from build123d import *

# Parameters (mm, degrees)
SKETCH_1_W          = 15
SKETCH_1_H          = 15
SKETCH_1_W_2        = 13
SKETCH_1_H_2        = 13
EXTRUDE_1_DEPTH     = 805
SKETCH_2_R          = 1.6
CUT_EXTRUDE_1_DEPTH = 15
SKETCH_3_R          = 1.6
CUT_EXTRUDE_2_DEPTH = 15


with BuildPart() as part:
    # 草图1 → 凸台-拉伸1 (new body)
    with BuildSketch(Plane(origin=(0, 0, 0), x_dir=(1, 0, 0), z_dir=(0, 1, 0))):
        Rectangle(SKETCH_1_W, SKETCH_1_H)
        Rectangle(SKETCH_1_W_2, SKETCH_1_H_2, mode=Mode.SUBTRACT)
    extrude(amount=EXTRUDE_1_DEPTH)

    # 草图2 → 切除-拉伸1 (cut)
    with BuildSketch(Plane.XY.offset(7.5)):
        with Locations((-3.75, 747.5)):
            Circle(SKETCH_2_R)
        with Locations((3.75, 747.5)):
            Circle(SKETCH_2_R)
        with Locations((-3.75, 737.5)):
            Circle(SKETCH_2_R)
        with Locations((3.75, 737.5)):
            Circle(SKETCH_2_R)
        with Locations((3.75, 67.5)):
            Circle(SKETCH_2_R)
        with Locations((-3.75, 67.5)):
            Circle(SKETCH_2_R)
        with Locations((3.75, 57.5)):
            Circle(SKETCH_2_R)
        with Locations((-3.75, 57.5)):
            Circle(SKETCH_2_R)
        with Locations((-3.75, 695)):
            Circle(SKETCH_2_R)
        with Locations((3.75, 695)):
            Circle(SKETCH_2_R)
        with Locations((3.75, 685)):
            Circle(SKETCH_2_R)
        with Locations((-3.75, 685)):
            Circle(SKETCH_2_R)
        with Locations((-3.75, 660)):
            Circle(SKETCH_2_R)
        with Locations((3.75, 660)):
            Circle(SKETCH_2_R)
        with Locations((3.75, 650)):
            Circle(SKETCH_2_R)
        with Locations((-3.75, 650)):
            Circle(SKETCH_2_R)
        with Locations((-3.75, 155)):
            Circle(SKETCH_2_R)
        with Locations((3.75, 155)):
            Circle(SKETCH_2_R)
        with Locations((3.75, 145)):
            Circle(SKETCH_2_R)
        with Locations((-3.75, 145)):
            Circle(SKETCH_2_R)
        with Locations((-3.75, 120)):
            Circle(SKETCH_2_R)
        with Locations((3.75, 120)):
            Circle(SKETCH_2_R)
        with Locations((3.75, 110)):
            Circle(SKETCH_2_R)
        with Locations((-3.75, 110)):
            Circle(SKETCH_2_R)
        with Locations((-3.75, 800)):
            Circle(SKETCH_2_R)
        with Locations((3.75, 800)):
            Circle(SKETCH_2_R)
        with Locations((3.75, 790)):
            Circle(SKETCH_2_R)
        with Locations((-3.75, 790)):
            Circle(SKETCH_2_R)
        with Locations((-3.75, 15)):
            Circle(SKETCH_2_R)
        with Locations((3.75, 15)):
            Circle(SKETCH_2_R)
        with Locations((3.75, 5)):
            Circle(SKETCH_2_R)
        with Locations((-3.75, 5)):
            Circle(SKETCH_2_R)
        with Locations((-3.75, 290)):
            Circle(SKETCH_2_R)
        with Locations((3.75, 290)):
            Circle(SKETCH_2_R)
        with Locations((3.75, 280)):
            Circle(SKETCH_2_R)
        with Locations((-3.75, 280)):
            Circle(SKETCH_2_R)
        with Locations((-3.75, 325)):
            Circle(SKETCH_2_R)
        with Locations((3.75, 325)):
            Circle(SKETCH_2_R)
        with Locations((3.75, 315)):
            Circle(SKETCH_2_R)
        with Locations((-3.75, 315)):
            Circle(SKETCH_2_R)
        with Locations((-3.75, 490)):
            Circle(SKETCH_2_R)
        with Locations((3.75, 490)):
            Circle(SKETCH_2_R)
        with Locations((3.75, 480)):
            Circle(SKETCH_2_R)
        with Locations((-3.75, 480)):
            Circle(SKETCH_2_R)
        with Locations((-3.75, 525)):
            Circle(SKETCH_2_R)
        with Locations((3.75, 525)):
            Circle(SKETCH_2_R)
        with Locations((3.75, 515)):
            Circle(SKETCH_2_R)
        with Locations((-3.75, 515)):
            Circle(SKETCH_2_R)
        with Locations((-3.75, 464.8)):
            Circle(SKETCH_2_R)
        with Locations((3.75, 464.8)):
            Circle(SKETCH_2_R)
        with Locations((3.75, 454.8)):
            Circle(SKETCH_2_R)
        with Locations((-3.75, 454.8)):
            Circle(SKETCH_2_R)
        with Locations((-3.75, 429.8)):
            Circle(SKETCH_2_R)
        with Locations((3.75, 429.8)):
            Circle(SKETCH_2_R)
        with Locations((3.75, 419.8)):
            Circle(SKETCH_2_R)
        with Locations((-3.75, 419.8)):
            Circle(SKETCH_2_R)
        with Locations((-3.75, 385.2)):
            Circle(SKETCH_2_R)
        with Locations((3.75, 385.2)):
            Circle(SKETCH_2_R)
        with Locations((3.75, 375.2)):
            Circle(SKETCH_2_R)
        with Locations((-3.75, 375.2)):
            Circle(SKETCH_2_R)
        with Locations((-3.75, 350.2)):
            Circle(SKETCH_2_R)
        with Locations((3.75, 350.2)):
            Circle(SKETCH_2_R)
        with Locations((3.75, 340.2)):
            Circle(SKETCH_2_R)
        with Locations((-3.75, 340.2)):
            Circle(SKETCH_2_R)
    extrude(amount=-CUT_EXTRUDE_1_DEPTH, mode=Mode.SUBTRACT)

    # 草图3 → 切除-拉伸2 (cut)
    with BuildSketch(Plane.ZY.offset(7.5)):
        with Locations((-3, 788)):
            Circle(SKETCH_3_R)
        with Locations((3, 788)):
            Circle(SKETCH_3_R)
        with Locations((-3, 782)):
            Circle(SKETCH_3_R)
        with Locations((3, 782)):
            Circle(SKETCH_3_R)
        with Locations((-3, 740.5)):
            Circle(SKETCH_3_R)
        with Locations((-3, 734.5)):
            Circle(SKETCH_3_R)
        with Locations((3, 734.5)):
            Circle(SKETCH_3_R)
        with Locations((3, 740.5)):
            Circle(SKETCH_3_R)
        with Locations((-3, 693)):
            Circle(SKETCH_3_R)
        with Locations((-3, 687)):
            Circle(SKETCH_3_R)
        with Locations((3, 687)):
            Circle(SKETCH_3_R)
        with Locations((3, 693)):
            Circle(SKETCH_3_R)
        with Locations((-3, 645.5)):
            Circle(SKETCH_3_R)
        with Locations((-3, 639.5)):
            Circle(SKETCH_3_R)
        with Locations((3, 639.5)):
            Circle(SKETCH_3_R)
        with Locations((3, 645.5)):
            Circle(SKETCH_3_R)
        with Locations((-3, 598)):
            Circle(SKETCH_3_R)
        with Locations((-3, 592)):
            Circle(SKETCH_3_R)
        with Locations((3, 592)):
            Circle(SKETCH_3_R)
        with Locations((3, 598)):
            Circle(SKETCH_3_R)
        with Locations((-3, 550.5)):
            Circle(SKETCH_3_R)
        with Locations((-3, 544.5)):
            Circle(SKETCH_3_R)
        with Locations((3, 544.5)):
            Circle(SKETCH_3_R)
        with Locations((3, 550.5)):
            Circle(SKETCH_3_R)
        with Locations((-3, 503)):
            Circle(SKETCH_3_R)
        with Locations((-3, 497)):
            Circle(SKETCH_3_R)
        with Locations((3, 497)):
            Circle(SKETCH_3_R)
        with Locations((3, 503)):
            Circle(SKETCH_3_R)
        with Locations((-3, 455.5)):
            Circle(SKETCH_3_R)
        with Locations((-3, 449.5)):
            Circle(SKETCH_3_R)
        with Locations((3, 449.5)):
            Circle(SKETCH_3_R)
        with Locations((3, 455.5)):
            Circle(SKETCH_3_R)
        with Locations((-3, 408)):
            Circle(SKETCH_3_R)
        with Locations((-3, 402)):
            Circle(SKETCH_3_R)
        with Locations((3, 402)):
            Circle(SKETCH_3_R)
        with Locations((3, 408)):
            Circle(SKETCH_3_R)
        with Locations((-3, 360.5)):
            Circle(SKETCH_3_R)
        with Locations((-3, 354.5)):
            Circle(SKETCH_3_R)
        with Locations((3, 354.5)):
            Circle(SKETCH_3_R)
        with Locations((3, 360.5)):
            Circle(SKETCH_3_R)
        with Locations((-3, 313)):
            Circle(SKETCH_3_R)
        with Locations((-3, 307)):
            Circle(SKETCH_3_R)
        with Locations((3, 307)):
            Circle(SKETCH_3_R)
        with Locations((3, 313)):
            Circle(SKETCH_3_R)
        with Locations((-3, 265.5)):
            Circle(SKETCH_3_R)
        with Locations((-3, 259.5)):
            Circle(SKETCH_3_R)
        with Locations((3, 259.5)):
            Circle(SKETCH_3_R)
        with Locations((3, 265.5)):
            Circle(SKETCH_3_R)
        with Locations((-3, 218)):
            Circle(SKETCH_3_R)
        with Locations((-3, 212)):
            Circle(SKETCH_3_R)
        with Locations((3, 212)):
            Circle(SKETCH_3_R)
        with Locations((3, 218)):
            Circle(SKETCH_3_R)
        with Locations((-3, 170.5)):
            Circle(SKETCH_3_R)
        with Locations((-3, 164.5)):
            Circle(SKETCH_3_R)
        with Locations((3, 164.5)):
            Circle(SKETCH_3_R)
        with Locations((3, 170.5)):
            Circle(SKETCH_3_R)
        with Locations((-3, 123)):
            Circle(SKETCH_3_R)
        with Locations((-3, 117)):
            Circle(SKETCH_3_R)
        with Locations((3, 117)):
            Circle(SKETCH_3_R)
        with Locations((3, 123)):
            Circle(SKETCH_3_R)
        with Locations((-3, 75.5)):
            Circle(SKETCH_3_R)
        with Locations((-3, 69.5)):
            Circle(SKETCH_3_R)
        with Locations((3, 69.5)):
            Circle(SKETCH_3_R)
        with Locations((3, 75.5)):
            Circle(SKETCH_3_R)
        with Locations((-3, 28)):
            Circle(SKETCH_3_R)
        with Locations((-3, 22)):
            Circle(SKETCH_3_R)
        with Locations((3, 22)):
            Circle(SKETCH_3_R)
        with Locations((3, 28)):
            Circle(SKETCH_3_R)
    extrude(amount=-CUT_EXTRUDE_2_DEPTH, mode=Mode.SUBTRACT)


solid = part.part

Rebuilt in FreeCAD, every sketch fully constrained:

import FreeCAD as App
import Part
import Sketcher
from FreeCAD import Vector
Q = App.Units.Quantity


def add_polygon(sketch, points):
    """Adds a closed chain of lines whose ends are joined by coincident constraints."""
    first, n = sketch.GeometryCount, len(points)
    for a, b in zip(points, points[1:] + points[:1]):
        sketch.addGeometry(Part.LineSegment(App.Vector(*a, 0), App.Vector(*b, 0)), False)
    for i in range(n):
        sketch.addConstraint(Sketcher.Constraint("Coincident", first + i, 2, first + (i + 1) % n, 1))

doc = App.newDocument("Part")
body = doc.addObject("PartDesign::Body", "Body")

sketch1 = body.newObject("Sketcher::SketchObject", "Sketch")
sketch1.AttachmentSupport = (doc.getObject("XZ_Plane"), [""])
sketch1.MapMode = "FlatFace"
add_polygon(sketch1, [(-8, -8), (-8, 8), (8, 8), (8, -8)])
add_polygon(sketch1, [(6, 6), (-6, 6), (-6, -6), (6, -6)])
sketch1.addConstraint(Sketcher.Constraint("Vertical", 0))
sketch1.addConstraint(Sketcher.Constraint("Horizontal", 1))
sketch1.addConstraint(Sketcher.Constraint("Vertical", 2))
sketch1.addConstraint(Sketcher.Constraint("Horizontal", 3))
sketch1.addConstraint(Sketcher.Constraint("Horizontal", 4))
sketch1.addConstraint(Sketcher.Constraint("Vertical", 5))
sketch1.addConstraint(Sketcher.Constraint("Horizontal", 6))
sketch1.addConstraint(Sketcher.Constraint("Vertical", 7))
sketch1.addConstraint(Sketcher.Constraint("Symmetric", 0, 2, 2, 2, -1, 1))
sketch1.addConstraint(Sketcher.Constraint("Symmetric", 4, 2, 6, 2, -1, 1))
sketch1.addConstraint(Sketcher.Constraint("Equal", 3, 0))
sketch1.addConstraint(Sketcher.Constraint("Equal", 6, 5))
sketch1.addConstraint(Sketcher.Constraint("DistanceX", 1, 1, 1, 2, Q("15 mm")))
sketch1.addConstraint(Sketcher.Constraint("DistanceX", 4, 2, 4, 1, Q("13 mm")))
pad1 = body.newObject("PartDesign::Pad", "Pad")
pad1.Profile = sketch1
pad1.Length = 805
pad1.Reversed = True

sketch2 = body.newObject("Sketcher::SketchObject", "Sketch001")
sketch2.AttachmentSupport = (doc.getObject("XY_Plane"), [""])
sketch2.MapMode = "FlatFace"
sketch2.AttachmentOffset = App.Placement(Vector(0, 0, 7.5), App.Rotation())
sketch2.addGeometry(Part.Circle(Vector(-3.8, 747.5, 0), Vector(0, 0, 1), 1.6), False)
sketch2.addGeometry(Part.Circle(Vector(3.8, 747.5, 0), Vector(0, 0, 1), 1.6), False)
sketch2.addGeometry(Part.Circle(Vector(-3.8, 737.5, 0), Vector(0, 0, 1), 1.6), False)
sketch2.addGeometry(Part.Circle(Vector(3.8, 737.5, 0), Vector(0, 0, 1), 1.6), False)
sketch2.addGeometry(Part.Circle(Vector(3.8, 67.5, 0), Vector(0, 0, 1), 1.6), False)
sketch2.addGeometry(Part.Circle(Vector(-3.8, 67.5, 0), Vector(0, 0, 1), 1.6), False)
sketch2.addGeometry(Part.Circle(Vector(3.8, 57.5, 0), Vector(0, 0, 1), 1.6), False)
sketch2.addGeometry(Part.Circle(Vector(-3.8, 57.5, 0), Vector(0, 0, 1), 1.6), False)
sketch2.addGeometry(Part.Circle(Vector(-3.8, 695, 0), Vector(0, 0, 1), 1.6), False)
sketch2.addGeometry(Part.Circle(Vector(3.8, 695, 0), Vector(0, 0, 1), 1.6), False)
sketch2.addGeometry(Part.Circle(Vector(3.8, 685, 0), Vector(0, 0, 1), 1.6), False)
sketch2.addGeometry(Part.Circle(Vector(-3.8, 685, 0), Vector(0, 0, 1), 1.6), False)
sketch2.addGeometry(Part.Circle(Vector(-3.8, 660, 0), Vector(0, 0, 1), 1.6), False)
sketch2.addGeometry(Part.Circle(Vector(3.8, 660, 0), Vector(0, 0, 1), 1.6), False)
sketch2.addGeometry(Part.Circle(Vector(3.8, 650, 0), Vector(0, 0, 1), 1.6), False)
sketch2.addGeometry(Part.Circle(Vector(-3.8, 650, 0), Vector(0, 0, 1), 1.6), False)
sketch2.addGeometry(Part.Circle(Vector(-3.8, 155, 0), Vector(0, 0, 1), 1.6), False)
sketch2.addGeometry(Part.Circle(Vector(3.8, 155, 0), Vector(0, 0, 1), 1.6), False)
sketch2.addGeometry(Part.Circle(Vector(3.8, 145, 0), Vector(0, 0, 1), 1.6), False)
sketch2.addGeometry(Part.Circle(Vector(-3.8, 145, 0), Vector(0, 0, 1), 1.6), False)
sketch2.addGeometry(Part.Circle(Vector(-3.8, 120, 0), Vector(0, 0, 1), 1.6), False)
sketch2.addGeometry(Part.Circle(Vector(3.8, 120, 0), Vector(0, 0, 1), 1.6), False)
sketch2.addGeometry(Part.Circle(Vector(3.8, 110, 0), Vector(0, 0, 1), 1.6), False)
sketch2.addGeometry(Part.Circle(Vector(-3.8, 110, 0), Vector(0, 0, 1), 1.6), False)
sketch2.addGeometry(Part.Circle(Vector(-3.8, 800, 0), Vector(0, 0, 1), 1.6), False)
sketch2.addGeometry(Part.Circle(Vector(3.8, 800, 0), Vector(0, 0, 1), 1.6), False)
sketch2.addGeometry(Part.Circle(Vector(3.8, 790, 0), Vector(0, 0, 1), 1.6), False)
sketch2.addGeometry(Part.Circle(Vector(-3.8, 790, 0), Vector(0, 0, 1), 1.6), False)
sketch2.addGeometry(Part.Circle(Vector(-3.8, 15, 0), Vector(0, 0, 1), 1.6), False)
sketch2.addGeometry(Part.Circle(Vector(3.8, 15, 0), Vector(0, 0, 1), 1.6), False)
sketch2.addGeometry(Part.Circle(Vector(3.8, 5, 0), Vector(0, 0, 1), 1.6), False)
sketch2.addGeometry(Part.Circle(Vector(-3.8, 5, 0), Vector(0, 0, 1), 1.6), False)
sketch2.addGeometry(Part.Circle(Vector(-3.8, 290, 0), Vector(0, 0, 1), 1.6), False)
sketch2.addGeometry(Part.Circle(Vector(3.8, 290, 0), Vector(0, 0, 1), 1.6), False)
sketch2.addGeometry(Part.Circle(Vector(3.8, 280, 0), Vector(0, 0, 1), 1.6), False)
sketch2.addGeometry(Part.Circle(Vector(-3.8, 280, 0), Vector(0, 0, 1), 1.6), False)
sketch2.addGeometry(Part.Circle(Vector(-3.8, 325, 0), Vector(0, 0, 1), 1.6), False)
sketch2.addGeometry(Part.Circle(Vector(3.8, 325, 0), Vector(0, 0, 1), 1.6), False)
sketch2.addGeometry(Part.Circle(Vector(3.8, 315, 0), Vector(0, 0, 1), 1.6), False)
sketch2.addGeometry(Part.Circle(Vector(-3.8, 315, 0), Vector(0, 0, 1), 1.6), False)
sketch2.addGeometry(Part.Circle(Vector(-3.8, 490, 0), Vector(0, 0, 1), 1.6), False)
sketch2.addGeometry(Part.Circle(Vector(3.8, 490, 0), Vector(0, 0, 1), 1.6), False)
sketch2.addGeometry(Part.Circle(Vector(3.8, 480, 0), Vector(0, 0, 1), 1.6), False)
sketch2.addGeometry(Part.Circle(Vector(-3.8, 480, 0), Vector(0, 0, 1), 1.6), False)
sketch2.addGeometry(Part.Circle(Vector(-3.8, 525, 0), Vector(0, 0, 1), 1.6), False)
sketch2.addGeometry(Part.Circle(Vector(3.8, 525, 0), Vector(0, 0, 1), 1.6), False)
sketch2.addGeometry(Part.Circle(Vector(3.8, 515, 0), Vector(0, 0, 1), 1.6), False)
sketch2.addGeometry(Part.Circle(Vector(-3.8, 515, 0), Vector(0, 0, 1), 1.6), False)
sketch2.addGeometry(Part.Circle(Vector(-3.8, 464.8, 0), Vector(0, 0, 1), 1.6), False)
sketch2.addGeometry(Part.Circle(Vector(3.8, 464.8, 0), Vector(0, 0, 1), 1.6), False)
sketch2.addGeometry(Part.Circle(Vector(3.8, 454.8, 0), Vector(0, 0, 1), 1.6), False)
sketch2.addGeometry(Part.Circle(Vector(-3.8, 454.8, 0), Vector(0, 0, 1), 1.6), False)
sketch2.addGeometry(Part.Circle(Vector(-3.8, 429.8, 0), Vector(0, 0, 1), 1.6), False)
sketch2.addGeometry(Part.Circle(Vector(3.8, 429.8, 0), Vector(0, 0, 1), 1.6), False)
sketch2.addGeometry(Part.Circle(Vector(3.8, 419.8, 0), Vector(0, 0, 1), 1.6), False)
sketch2.addGeometry(Part.Circle(Vector(-3.8, 419.8, 0), Vector(0, 0, 1), 1.6), False)
sketch2.addGeometry(Part.Circle(Vector(-3.8, 385.2, 0), Vector(0, 0, 1), 1.6), False)
sketch2.addGeometry(Part.Circle(Vector(3.8, 385.2, 0), Vector(0, 0, 1), 1.6), False)
sketch2.addGeometry(Part.Circle(Vector(3.8, 375.2, 0), Vector(0, 0, 1), 1.6), False)
sketch2.addGeometry(Part.Circle(Vector(-3.8, 375.2, 0), Vector(0, 0, 1), 1.6), False)
sketch2.addGeometry(Part.Circle(Vector(-3.8, 350.2, 0), Vector(0, 0, 1), 1.6), False)
sketch2.addGeometry(Part.Circle(Vector(3.8, 350.2, 0), Vector(0, 0, 1), 1.6), False)
sketch2.addGeometry(Part.Circle(Vector(3.8, 340.2, 0), Vector(0, 0, 1), 1.6), False)
sketch2.addGeometry(Part.Circle(Vector(-3.8, 340.2, 0), Vector(0, 0, 1), 1.6), False)
sketch2.addConstraint(Sketcher.Constraint("Equal", 0, 1))
sketch2.addConstraint(Sketcher.Constraint("Equal", 1, 2))
sketch2.addConstraint(Sketcher.Constraint("Equal", 2, 3))
sketch2.addConstraint(Sketcher.Constraint("Equal", 3, 4))
sketch2.addConstraint(Sketcher.Constraint("Equal", 4, 5))
sketch2.addConstraint(Sketcher.Constraint("Equal", 5, 6))
sketch2.addConstraint(Sketcher.Constraint("Equal", 6, 7))
sketch2.addConstraint(Sketcher.Constraint("Equal", 7, 8))
sketch2.addConstraint(Sketcher.Constraint("Equal", 8, 9))
sketch2.addConstraint(Sketcher.Constraint("Equal", 9, 10))
sketch2.addConstraint(Sketcher.Constraint("Equal", 10, 11))
sketch2.addConstraint(Sketcher.Constraint("Equal", 11, 12))
sketch2.addConstraint(Sketcher.Constraint("Equal", 12, 13))
sketch2.addConstraint(Sketcher.Constraint("Equal", 13, 14))
sketch2.addConstraint(Sketcher.Constraint("Equal", 14, 15))
sketch2.addConstraint(Sketcher.Constraint("Equal", 15, 16))
sketch2.addConstraint(Sketcher.Constraint("Equal", 16, 17))
sketch2.addConstraint(Sketcher.Constraint("Equal", 17, 18))
sketch2.addConstraint(Sketcher.Constraint("Equal", 18, 19))
sketch2.addConstraint(Sketcher.Constraint("Equal", 19, 20))
sketch2.addConstraint(Sketcher.Constraint("Equal", 20, 21))
sketch2.addConstraint(Sketcher.Constraint("Equal", 21, 22))
sketch2.addConstraint(Sketcher.Constraint("Equal", 22, 23))
sketch2.addConstraint(Sketcher.Constraint("Equal", 23, 24))
sketch2.addConstraint(Sketcher.Constraint("Equal", 24, 25))
sketch2.addConstraint(Sketcher.Constraint("Equal", 25, 26))
sketch2.addConstraint(Sketcher.Constraint("Equal", 26, 27))
sketch2.addConstraint(Sketcher.Constraint("Equal", 27, 28))
sketch2.addConstraint(Sketcher.Constraint("Equal", 28, 29))
sketch2.addConstraint(Sketcher.Constraint("Equal", 29, 30))
sketch2.addConstraint(Sketcher.Constraint("Equal", 30, 31))
sketch2.addConstraint(Sketcher.Constraint("Equal", 31, 32))
sketch2.addConstraint(Sketcher.Constraint("Equal", 32, 33))
sketch2.addConstraint(Sketcher.Constraint("Equal", 33, 34))
sketch2.addConstraint(Sketcher.Constraint("Equal", 34, 35))
sketch2.addConstraint(Sketcher.Constraint("Equal", 35, 36))
sketch2.addConstraint(Sketcher.Constraint("Equal", 36, 37))
sketch2.addConstraint(Sketcher.Constraint("Equal", 37, 38))
sketch2.addConstraint(Sketcher.Constraint("Equal", 38, 39))
sketch2.addConstraint(Sketcher.Constraint("Equal", 39, 40))
sketch2.addConstraint(Sketcher.Constraint("Equal", 40, 41))
sketch2.addConstraint(Sketcher.Constraint("Equal", 41, 42))
sketch2.addConstraint(Sketcher.Constraint("Equal", 42, 43))
sketch2.addConstraint(Sketcher.Constraint("Equal", 43, 44))
sketch2.addConstraint(Sketcher.Constraint("Equal", 44, 45))
sketch2.addConstraint(Sketcher.Constraint("Equal", 45, 46))
sketch2.addConstraint(Sketcher.Constraint("Equal", 46, 47))
sketch2.addConstraint(Sketcher.Constraint("Equal", 47, 48))
sketch2.addConstraint(Sketcher.Constraint("Equal", 48, 49))
sketch2.addConstraint(Sketcher.Constraint("Equal", 49, 50))
sketch2.addConstraint(Sketcher.Constraint("Equal", 50, 51))
sketch2.addConstraint(Sketcher.Constraint("Equal", 51, 52))
sketch2.addConstraint(Sketcher.Constraint("Equal", 52, 53))
sketch2.addConstraint(Sketcher.Constraint("Equal", 53, 54))
sketch2.addConstraint(Sketcher.Constraint("Equal", 54, 55))
sketch2.addConstraint(Sketcher.Constraint("Equal", 55, 56))
sketch2.addConstraint(Sketcher.Constraint("Equal", 56, 57))
sketch2.addConstraint(Sketcher.Constraint("Equal", 57, 58))
sketch2.addConstraint(Sketcher.Constraint("Equal", 58, 59))
sketch2.addConstraint(Sketcher.Constraint("Equal", 59, 60))
sketch2.addConstraint(Sketcher.Constraint("Equal", 60, 61))
sketch2.addConstraint(Sketcher.Constraint("Equal", 61, 62))
sketch2.addConstraint(Sketcher.Constraint("Equal", 62, 63))
sketch2.addConstraint(Sketcher.Constraint("Symmetric", 0, 3, 1, 3, -2))
sketch2.addConstraint(Sketcher.Constraint("Symmetric", 2, 3, 3, 3, -2))
sketch2.addConstraint(Sketcher.Constraint("Symmetric", 4, 3, 5, 3, -2))
sketch2.addConstraint(Sketcher.Constraint("Symmetric", 6, 3, 7, 3, -2))
sketch2.addConstraint(Sketcher.Constraint("Symmetric", 8, 3, 9, 3, -2))
sketch2.addConstraint(Sketcher.Constraint("Symmetric", 10, 3, 11, 3, -2))
sketch2.addConstraint(Sketcher.Constraint("Symmetric", 12, 3, 13, 3, -2))
sketch2.addConstraint(Sketcher.Constraint("Symmetric", 14, 3, 15, 3, -2))
sketch2.addConstraint(Sketcher.Constraint("Symmetric", 16, 3, 17, 3, -2))
sketch2.addConstraint(Sketcher.Constraint("Symmetric", 18, 3, 19, 3, -2))
sketch2.addConstraint(Sketcher.Constraint("Symmetric", 20, 3, 21, 3, -2))
sketch2.addConstraint(Sketcher.Constraint("Symmetric", 22, 3, 23, 3, -2))
sketch2.addConstraint(Sketcher.Constraint("Symmetric", 24, 3, 25, 3, -2))
sketch2.addConstraint(Sketcher.Constraint("Symmetric", 26, 3, 27, 3, -2))
sketch2.addConstraint(Sketcher.Constraint("Symmetric", 28, 3, 29, 3, -2))
sketch2.addConstraint(Sketcher.Constraint("Symmetric", 30, 3, 31, 3, -2))
sketch2.addConstraint(Sketcher.Constraint("Symmetric", 32, 3, 33, 3, -2))
sketch2.addConstraint(Sketcher.Constraint("Symmetric", 34, 3, 35, 3, -2))
sketch2.addConstraint(Sketcher.Constraint("Symmetric", 36, 3, 37, 3, -2))
sketch2.addConstraint(Sketcher.Constraint("Symmetric", 38, 3, 39, 3, -2))
sketch2.addConstraint(Sketcher.Constraint("Symmetric", 40, 3, 41, 3, -2))
sketch2.addConstraint(Sketcher.Constraint("Symmetric", 42, 3, 43, 3, -2))
sketch2.addConstraint(Sketcher.Constraint("Symmetric", 44, 3, 45, 3, -2))
sketch2.addConstraint(Sketcher.Constraint("Symmetric", 46, 3, 47, 3, -2))
sketch2.addConstraint(Sketcher.Constraint("Symmetric", 48, 3, 49, 3, -2))
sketch2.addConstraint(Sketcher.Constraint("Symmetric", 50, 3, 51, 3, -2))
sketch2.addConstraint(Sketcher.Constraint("Symmetric", 52, 3, 53, 3, -2))
sketch2.addConstraint(Sketcher.Constraint("Symmetric", 54, 3, 55, 3, -2))
sketch2.addConstraint(Sketcher.Constraint("Symmetric", 56, 3, 57, 3, -2))
sketch2.addConstraint(Sketcher.Constraint("Symmetric", 58, 3, 59, 3, -2))
sketch2.addConstraint(Sketcher.Constraint("Symmetric", 60, 3, 61, 3, -2))
sketch2.addConstraint(Sketcher.Constraint("Symmetric", 62, 3, 63, 3, -2))
sketch2.addConstraint(Sketcher.Constraint("Vertical", 0, 3, 2, 3))
sketch2.addConstraint(Sketcher.Constraint("Vertical", 3, 3, 4, 3))
sketch2.addConstraint(Sketcher.Constraint("Vertical", 4, 3, 6, 3))
sketch2.addConstraint(Sketcher.Constraint("Vertical", 7, 3, 8, 3))
sketch2.addConstraint(Sketcher.Constraint("Vertical", 9, 3, 10, 3))
sketch2.addConstraint(Sketcher.Constraint("Vertical", 11, 3, 12, 3))
sketch2.addConstraint(Sketcher.Constraint("Vertical", 13, 3, 14, 3))
sketch2.addConstraint(Sketcher.Constraint("Vertical", 15, 3, 16, 3))
sketch2.addConstraint(Sketcher.Constraint("Vertical", 17, 3, 18, 3))
sketch2.addConstraint(Sketcher.Constraint("Vertical", 19, 3, 20, 3))
sketch2.addConstraint(Sketcher.Constraint("Vertical", 21, 3, 22, 3))
sketch2.addConstraint(Sketcher.Constraint("Vertical", 23, 3, 24, 3))
sketch2.addConstraint(Sketcher.Constraint("Vertical", 25, 3, 26, 3))
sketch2.addConstraint(Sketcher.Constraint("Vertical", 27, 3, 28, 3))
sketch2.addConstraint(Sketcher.Constraint("Vertical", 29, 3, 30, 3))
sketch2.addConstraint(Sketcher.Constraint("Vertical", 31, 3, 32, 3))
sketch2.addConstraint(Sketcher.Constraint("Vertical", 33, 3, 34, 3))
sketch2.addConstraint(Sketcher.Constraint("Vertical", 35, 3, 36, 3))
sketch2.addConstraint(Sketcher.Constraint("Vertical", 37, 3, 38, 3))
sketch2.addConstraint(Sketcher.Constraint("Vertical", 39, 3, 40, 3))
sketch2.addConstraint(Sketcher.Constraint("Vertical", 41, 3, 42, 3))
sketch2.addConstraint(Sketcher.Constraint("Vertical", 43, 3, 44, 3))
sketch2.addConstraint(Sketcher.Constraint("Vertical", 45, 3, 46, 3))
sketch2.addConstraint(Sketcher.Constraint("Vertical", 47, 3, 48, 3))
sketch2.addConstraint(Sketcher.Constraint("Vertical", 49, 3, 50, 3))
sketch2.addConstraint(Sketcher.Constraint("Vertical", 51, 3, 52, 3))
sketch2.addConstraint(Sketcher.Constraint("Vertical", 53, 3, 54, 3))
sketch2.addConstraint(Sketcher.Constraint("Vertical", 55, 3, 56, 3))
sketch2.addConstraint(Sketcher.Constraint("Vertical", 57, 3, 58, 3))
sketch2.addConstraint(Sketcher.Constraint("Vertical", 59, 3, 60, 3))
sketch2.addConstraint(Sketcher.Constraint("Vertical", 61, 3, 62, 3))
sketch2.addConstraint(Sketcher.Constraint("Diameter", 0, Q("3.2 mm")))
sketch2.addConstraint(Sketcher.Constraint("DistanceY", -1, 1, 8, 3, Q("695 mm")))
sketch2.addConstraint(Sketcher.Constraint("DistanceY", -1, 1, 10, 3, Q("685 mm")))
sketch2.addConstraint(Sketcher.Constraint("DistanceY", -1, 1, 12, 3, Q("660 mm")))
sketch2.addConstraint(Sketcher.Constraint("DistanceY", -1, 1, 14, 3, Q("650 mm")))
sketch2.addConstraint(Sketcher.Constraint("DistanceY", -1, 1, 16, 3, Q("155 mm")))
sketch2.addConstraint(Sketcher.Constraint("DistanceY", -1, 1, 18, 3, Q("145 mm")))
sketch2.addConstraint(Sketcher.Constraint("DistanceY", -1, 1, 20, 3, Q("120 mm")))
sketch2.addConstraint(Sketcher.Constraint("DistanceY", -1, 1, 22, 3, Q("110 mm")))
sketch2.addConstraint(Sketcher.Constraint("DistanceY", -1, 1, 24, 3, Q("800 mm")))
sketch2.addConstraint(Sketcher.Constraint("DistanceY", -1, 1, 26, 3, Q("790 mm")))
sketch2.addConstraint(Sketcher.Constraint("DistanceY", -1, 1, 28, 3, Q("15 mm")))
sketch2.addConstraint(Sketcher.Constraint("DistanceY", -1, 1, 30, 3, Q("5 mm")))
sketch2.addConstraint(Sketcher.Constraint("DistanceY", -1, 1, 32, 3, Q("290 mm")))
sketch2.addConstraint(Sketcher.Constraint("DistanceY", -1, 1, 34, 3, Q("280 mm")))
sketch2.addConstraint(Sketcher.Constraint("DistanceY", -1, 1, 36, 3, Q("325 mm")))
sketch2.addConstraint(Sketcher.Constraint("DistanceY", -1, 1, 38, 3, Q("315 mm")))
sketch2.addConstraint(Sketcher.Constraint("DistanceY", -1, 1, 40, 3, Q("490 mm")))
sketch2.addConstraint(Sketcher.Constraint("DistanceY", -1, 1, 42, 3, Q("480 mm")))
sketch2.addConstraint(Sketcher.Constraint("DistanceY", -1, 1, 44, 3, Q("525 mm")))
sketch2.addConstraint(Sketcher.Constraint("DistanceY", -1, 1, 46, 3, Q("515 mm")))
sketch2.addConstraint(Sketcher.Constraint("DistanceY", -1, 1, 0, 3, Q("747.5 mm")))
sketch2.addConstraint(Sketcher.Constraint("DistanceY", -1, 1, 2, 3, Q("737.5 mm")))
sketch2.addConstraint(Sketcher.Constraint("DistanceY", -1, 1, 4, 3, Q("67.5 mm")))
sketch2.addConstraint(Sketcher.Constraint("DistanceY", -1, 1, 6, 3, Q("57.5 mm")))
sketch2.addConstraint(Sketcher.Constraint("DistanceY", -1, 1, 48, 3, Q("464.8 mm")))
sketch2.addConstraint(Sketcher.Constraint("DistanceY", -1, 1, 50, 3, Q("454.8 mm")))
sketch2.addConstraint(Sketcher.Constraint("DistanceY", -1, 1, 52, 3, Q("429.8 mm")))
sketch2.addConstraint(Sketcher.Constraint("DistanceY", -1, 1, 54, 3, Q("419.8 mm")))
sketch2.addConstraint(Sketcher.Constraint("DistanceY", -1, 1, 56, 3, Q("385.2 mm")))
sketch2.addConstraint(Sketcher.Constraint("DistanceY", -1, 1, 58, 3, Q("375.2 mm")))
sketch2.addConstraint(Sketcher.Constraint("DistanceY", -1, 1, 60, 3, Q("350.2 mm")))
sketch2.addConstraint(Sketcher.Constraint("DistanceY", -1, 1, 62, 3, Q("340.2 mm")))
sketch2.addConstraint(Sketcher.Constraint("DistanceX", 0, 3, -1, 1, Q("3.75 mm")))
pocket1 = body.newObject("PartDesign::Pocket", "Pocket")
pocket1.Profile = sketch2
pocket1.Length = 15

sketch3 = body.newObject("Sketcher::SketchObject", "Sketch002")
sketch3.AttachmentSupport = (doc.getObject("YZ_Plane"), [""])
sketch3.MapMode = "FlatFace"
sketch3.AttachmentOffset = App.Placement(Vector(0, 0, -7.5), App.Rotation())
sketch3.addGeometry(Part.Circle(Vector(788, -3, 0), Vector(0, 0, 1), 1.6), False)
sketch3.addGeometry(Part.Circle(Vector(788, 3, 0), Vector(0, 0, 1), 1.6), False)
sketch3.addGeometry(Part.Circle(Vector(782, -3, 0), Vector(0, 0, 1), 1.6), False)
sketch3.addGeometry(Part.Circle(Vector(782, 3, 0), Vector(0, 0, 1), 1.6), False)
sketch3.addGeometry(Part.Circle(Vector(740.5, -3, 0), Vector(0, 0, 1), 1.6), False)
sketch3.addGeometry(Part.Circle(Vector(734.5, -3, 0), Vector(0, 0, 1), 1.6), False)
sketch3.addGeometry(Part.Circle(Vector(734.5, 3, 0), Vector(0, 0, 1), 1.6), False)
sketch3.addGeometry(Part.Circle(Vector(740.5, 3, 0), Vector(0, 0, 1), 1.6), False)
sketch3.addGeometry(Part.Circle(Vector(693, -3, 0), Vector(0, 0, 1), 1.6), False)
sketch3.addGeometry(Part.Circle(Vector(687, -3, 0), Vector(0, 0, 1), 1.6), False)
sketch3.addGeometry(Part.Circle(Vector(687, 3, 0), Vector(0, 0, 1), 1.6), False)
sketch3.addGeometry(Part.Circle(Vector(693, 3, 0), Vector(0, 0, 1), 1.6), False)
sketch3.addGeometry(Part.Circle(Vector(645.5, -3, 0), Vector(0, 0, 1), 1.6), False)
sketch3.addGeometry(Part.Circle(Vector(639.5, -3, 0), Vector(0, 0, 1), 1.6), False)
sketch3.addGeometry(Part.Circle(Vector(639.5, 3, 0), Vector(0, 0, 1), 1.6), False)
sketch3.addGeometry(Part.Circle(Vector(645.5, 3, 0), Vector(0, 0, 1), 1.6), False)
sketch3.addGeometry(Part.Circle(Vector(598, -3, 0), Vector(0, 0, 1), 1.6), False)
sketch3.addGeometry(Part.Circle(Vector(592, -3, 0), Vector(0, 0, 1), 1.6), False)
sketch3.addGeometry(Part.Circle(Vector(592, 3, 0), Vector(0, 0, 1), 1.6), False)
sketch3.addGeometry(Part.Circle(Vector(598, 3, 0), Vector(0, 0, 1), 1.6), False)
sketch3.addGeometry(Part.Circle(Vector(550.5, -3, 0), Vector(0, 0, 1), 1.6), False)
sketch3.addGeometry(Part.Circle(Vector(544.5, -3, 0), Vector(0, 0, 1), 1.6), False)
sketch3.addGeometry(Part.Circle(Vector(544.5, 3, 0), Vector(0, 0, 1), 1.6), False)
sketch3.addGeometry(Part.Circle(Vector(550.5, 3, 0), Vector(0, 0, 1), 1.6), False)
sketch3.addGeometry(Part.Circle(Vector(503, -3, 0), Vector(0, 0, 1), 1.6), False)
sketch3.addGeometry(Part.Circle(Vector(497, -3, 0), Vector(0, 0, 1), 1.6), False)
sketch3.addGeometry(Part.Circle(Vector(497, 3, 0), Vector(0, 0, 1), 1.6), False)
sketch3.addGeometry(Part.Circle(Vector(503, 3, 0), Vector(0, 0, 1), 1.6), False)
sketch3.addGeometry(Part.Circle(Vector(455.5, -3, 0), Vector(0, 0, 1), 1.6), False)
sketch3.addGeometry(Part.Circle(Vector(449.5, -3, 0), Vector(0, 0, 1), 1.6), False)
sketch3.addGeometry(Part.Circle(Vector(449.5, 3, 0), Vector(0, 0, 1), 1.6), False)
sketch3.addGeometry(Part.Circle(Vector(455.5, 3, 0), Vector(0, 0, 1), 1.6), False)
sketch3.addGeometry(Part.Circle(Vector(408, -3, 0), Vector(0, 0, 1), 1.6), False)
sketch3.addGeometry(Part.Circle(Vector(402, -3, 0), Vector(0, 0, 1), 1.6), False)
sketch3.addGeometry(Part.Circle(Vector(402, 3, 0), Vector(0, 0, 1), 1.6), False)
sketch3.addGeometry(Part.Circle(Vector(408, 3, 0), Vector(0, 0, 1), 1.6), False)
sketch3.addGeometry(Part.Circle(Vector(360.5, -3, 0), Vector(0, 0, 1), 1.6), False)
sketch3.addGeometry(Part.Circle(Vector(354.5, -3, 0), Vector(0, 0, 1), 1.6), False)
sketch3.addGeometry(Part.Circle(Vector(354.5, 3, 0), Vector(0, 0, 1), 1.6), False)
sketch3.addGeometry(Part.Circle(Vector(360.5, 3, 0), Vector(0, 0, 1), 1.6), False)
sketch3.addGeometry(Part.Circle(Vector(313, -3, 0), Vector(0, 0, 1), 1.6), False)
sketch3.addGeometry(Part.Circle(Vector(307, -3, 0), Vector(0, 0, 1), 1.6), False)
sketch3.addGeometry(Part.Circle(Vector(307, 3, 0), Vector(0, 0, 1), 1.6), False)
sketch3.addGeometry(Part.Circle(Vector(313, 3, 0), Vector(0, 0, 1), 1.6), False)
sketch3.addGeometry(Part.Circle(Vector(265.5, -3, 0), Vector(0, 0, 1), 1.6), False)
sketch3.addGeometry(Part.Circle(Vector(259.5, -3, 0), Vector(0, 0, 1), 1.6), False)
sketch3.addGeometry(Part.Circle(Vector(259.5, 3, 0), Vector(0, 0, 1), 1.6), False)
sketch3.addGeometry(Part.Circle(Vector(265.5, 3, 0), Vector(0, 0, 1), 1.6), False)
sketch3.addGeometry(Part.Circle(Vector(218, -3, 0), Vector(0, 0, 1), 1.6), False)
sketch3.addGeometry(Part.Circle(Vector(212, -3, 0), Vector(0, 0, 1), 1.6), False)
sketch3.addGeometry(Part.Circle(Vector(212, 3, 0), Vector(0, 0, 1), 1.6), False)
sketch3.addGeometry(Part.Circle(Vector(218, 3, 0), Vector(0, 0, 1), 1.6), False)
sketch3.addGeometry(Part.Circle(Vector(170.5, -3, 0), Vector(0, 0, 1), 1.6), False)
sketch3.addGeometry(Part.Circle(Vector(164.5, -3, 0), Vector(0, 0, 1), 1.6), False)
sketch3.addGeometry(Part.Circle(Vector(164.5, 3, 0), Vector(0, 0, 1), 1.6), False)
sketch3.addGeometry(Part.Circle(Vector(170.5, 3, 0), Vector(0, 0, 1), 1.6), False)
sketch3.addGeometry(Part.Circle(Vector(123, -3, 0), Vector(0, 0, 1), 1.6), False)
sketch3.addGeometry(Part.Circle(Vector(117, -3, 0), Vector(0, 0, 1), 1.6), False)
sketch3.addGeometry(Part.Circle(Vector(117, 3, 0), Vector(0, 0, 1), 1.6), False)
sketch3.addGeometry(Part.Circle(Vector(123, 3, 0), Vector(0, 0, 1), 1.6), False)
sketch3.addGeometry(Part.Circle(Vector(75.5, -3, 0), Vector(0, 0, 1), 1.6), False)
sketch3.addGeometry(Part.Circle(Vector(69.5, -3, 0), Vector(0, 0, 1), 1.6), False)
sketch3.addGeometry(Part.Circle(Vector(69.5, 3, 0), Vector(0, 0, 1), 1.6), False)
sketch3.addGeometry(Part.Circle(Vector(75.5, 3, 0), Vector(0, 0, 1), 1.6), False)
sketch3.addGeometry(Part.Circle(Vector(28, -3, 0), Vector(0, 0, 1), 1.6), False)
sketch3.addGeometry(Part.Circle(Vector(22, -3, 0), Vector(0, 0, 1), 1.6), False)
sketch3.addGeometry(Part.Circle(Vector(22, 3, 0), Vector(0, 0, 1), 1.6), False)
sketch3.addGeometry(Part.Circle(Vector(28, 3, 0), Vector(0, 0, 1), 1.6), False)
sketch3.addConstraint(Sketcher.Constraint("Equal", 0, 1))
sketch3.addConstraint(Sketcher.Constraint("Equal", 1, 2))
sketch3.addConstraint(Sketcher.Constraint("Equal", 2, 3))
sketch3.addConstraint(Sketcher.Constraint("Equal", 3, 4))
sketch3.addConstraint(Sketcher.Constraint("Equal", 4, 5))
sketch3.addConstraint(Sketcher.Constraint("Equal", 5, 6))
sketch3.addConstraint(Sketcher.Constraint("Equal", 6, 7))
sketch3.addConstraint(Sketcher.Constraint("Equal", 7, 8))
sketch3.addConstraint(Sketcher.Constraint("Equal", 8, 9))
sketch3.addConstraint(Sketcher.Constraint("Equal", 9, 10))
sketch3.addConstraint(Sketcher.Constraint("Equal", 10, 11))
sketch3.addConstraint(Sketcher.Constraint("Equal", 11, 12))
sketch3.addConstraint(Sketcher.Constraint("Equal", 12, 13))
sketch3.addConstraint(Sketcher.Constraint("Equal", 13, 14))
sketch3.addConstraint(Sketcher.Constraint("Equal", 14, 15))
sketch3.addConstraint(Sketcher.Constraint("Equal", 15, 16))
sketch3.addConstraint(Sketcher.Constraint("Equal", 16, 17))
sketch3.addConstraint(Sketcher.Constraint("Equal", 17, 18))
sketch3.addConstraint(Sketcher.Constraint("Equal", 18, 19))
sketch3.addConstraint(Sketcher.Constraint("Equal", 19, 20))
sketch3.addConstraint(Sketcher.Constraint("Equal", 20, 21))
sketch3.addConstraint(Sketcher.Constraint("Equal", 21, 22))
sketch3.addConstraint(Sketcher.Constraint("Equal", 22, 23))
sketch3.addConstraint(Sketcher.Constraint("Equal", 23, 24))
sketch3.addConstraint(Sketcher.Constraint("Equal", 24, 25))
sketch3.addConstraint(Sketcher.Constraint("Equal", 25, 26))
sketch3.addConstraint(Sketcher.Constraint("Equal", 26, 27))
sketch3.addConstraint(Sketcher.Constraint("Equal", 27, 28))
sketch3.addConstraint(Sketcher.Constraint("Equal", 28, 29))
sketch3.addConstraint(Sketcher.Constraint("Equal", 29, 30))
sketch3.addConstraint(Sketcher.Constraint("Equal", 30, 31))
sketch3.addConstraint(Sketcher.Constraint("Equal", 31, 32))
sketch3.addConstraint(Sketcher.Constraint("Equal", 32, 33))
sketch3.addConstraint(Sketcher.Constraint("Equal", 33, 34))
sketch3.addConstraint(Sketcher.Constraint("Equal", 34, 35))
sketch3.addConstraint(Sketcher.Constraint("Equal", 35, 36))
sketch3.addConstraint(Sketcher.Constraint("Equal", 36, 37))
sketch3.addConstraint(Sketcher.Constraint("Equal", 37, 38))
sketch3.addConstraint(Sketcher.Constraint("Equal", 38, 39))
sketch3.addConstraint(Sketcher.Constraint("Equal", 39, 40))
sketch3.addConstraint(Sketcher.Constraint("Equal", 40, 41))
sketch3.addConstraint(Sketcher.Constraint("Equal", 41, 42))
sketch3.addConstraint(Sketcher.Constraint("Equal", 42, 43))
sketch3.addConstraint(Sketcher.Constraint("Equal", 43, 44))
sketch3.addConstraint(Sketcher.Constraint("Equal", 44, 45))
sketch3.addConstraint(Sketcher.Constraint("Equal", 45, 46))
sketch3.addConstraint(Sketcher.Constraint("Equal", 46, 47))
sketch3.addConstraint(Sketcher.Constraint("Equal", 47, 48))
sketch3.addConstraint(Sketcher.Constraint("Equal", 48, 49))
sketch3.addConstraint(Sketcher.Constraint("Equal", 49, 50))
sketch3.addConstraint(Sketcher.Constraint("Equal", 50, 51))
sketch3.addConstraint(Sketcher.Constraint("Equal", 51, 52))
sketch3.addConstraint(Sketcher.Constraint("Equal", 52, 53))
sketch3.addConstraint(Sketcher.Constraint("Equal", 53, 54))
sketch3.addConstraint(Sketcher.Constraint("Equal", 54, 55))
sketch3.addConstraint(Sketcher.Constraint("Equal", 55, 56))
sketch3.addConstraint(Sketcher.Constraint("Equal", 56, 57))
sketch3.addConstraint(Sketcher.Constraint("Equal", 57, 58))
sketch3.addConstraint(Sketcher.Constraint("Equal", 58, 59))
sketch3.addConstraint(Sketcher.Constraint("Equal", 59, 60))
sketch3.addConstraint(Sketcher.Constraint("Equal", 60, 61))
sketch3.addConstraint(Sketcher.Constraint("Equal", 61, 62))
sketch3.addConstraint(Sketcher.Constraint("Equal", 62, 63))
sketch3.addConstraint(Sketcher.Constraint("Equal", 63, 64))
sketch3.addConstraint(Sketcher.Constraint("Equal", 64, 65))
sketch3.addConstraint(Sketcher.Constraint("Equal", 65, 66))
sketch3.addConstraint(Sketcher.Constraint("Equal", 66, 67))
sketch3.addConstraint(Sketcher.Constraint("Symmetric", 0, 3, 1, 3, -1))
sketch3.addConstraint(Sketcher.Constraint("Symmetric", 2, 3, 3, 3, -1))
sketch3.addConstraint(Sketcher.Constraint("Symmetric", 5, 3, 6, 3, -1))
sketch3.addConstraint(Sketcher.Constraint("Symmetric", 4, 3, 7, 3, -1))
sketch3.addConstraint(Sketcher.Constraint("Symmetric", 9, 3, 10, 3, -1))
sketch3.addConstraint(Sketcher.Constraint("Symmetric", 8, 3, 11, 3, -1))
sketch3.addConstraint(Sketcher.Constraint("Symmetric", 13, 3, 14, 3, -1))
sketch3.addConstraint(Sketcher.Constraint("Symmetric", 12, 3, 15, 3, -1))
sketch3.addConstraint(Sketcher.Constraint("Symmetric", 17, 3, 18, 3, -1))
sketch3.addConstraint(Sketcher.Constraint("Symmetric", 16, 3, 19, 3, -1))
sketch3.addConstraint(Sketcher.Constraint("Symmetric", 21, 3, 22, 3, -1))
sketch3.addConstraint(Sketcher.Constraint("Symmetric", 20, 3, 23, 3, -1))
sketch3.addConstraint(Sketcher.Constraint("Symmetric", 25, 3, 26, 3, -1))
sketch3.addConstraint(Sketcher.Constraint("Symmetric", 24, 3, 27, 3, -1))
sketch3.addConstraint(Sketcher.Constraint("Symmetric", 29, 3, 30, 3, -1))
sketch3.addConstraint(Sketcher.Constraint("Symmetric", 28, 3, 31, 3, -1))
sketch3.addConstraint(Sketcher.Constraint("Symmetric", 33, 3, 34, 3, -1))
sketch3.addConstraint(Sketcher.Constraint("Symmetric", 32, 3, 35, 3, -1))
sketch3.addConstraint(Sketcher.Constraint("Symmetric", 37, 3, 38, 3, -1))
sketch3.addConstraint(Sketcher.Constraint("Symmetric", 36, 3, 39, 3, -1))
sketch3.addConstraint(Sketcher.Constraint("Symmetric", 41, 3, 42, 3, -1))
sketch3.addConstraint(Sketcher.Constraint("Symmetric", 40, 3, 43, 3, -1))
sketch3.addConstraint(Sketcher.Constraint("Symmetric", 45, 3, 46, 3, -1))
sketch3.addConstraint(Sketcher.Constraint("Symmetric", 44, 3, 47, 3, -1))
sketch3.addConstraint(Sketcher.Constraint("Symmetric", 49, 3, 50, 3, -1))
sketch3.addConstraint(Sketcher.Constraint("Symmetric", 48, 3, 51, 3, -1))
sketch3.addConstraint(Sketcher.Constraint("Symmetric", 53, 3, 54, 3, -1))
sketch3.addConstraint(Sketcher.Constraint("Symmetric", 52, 3, 55, 3, -1))
sketch3.addConstraint(Sketcher.Constraint("Symmetric", 57, 3, 58, 3, -1))
sketch3.addConstraint(Sketcher.Constraint("Symmetric", 56, 3, 59, 3, -1))
sketch3.addConstraint(Sketcher.Constraint("Symmetric", 61, 3, 62, 3, -1))
sketch3.addConstraint(Sketcher.Constraint("Symmetric", 60, 3, 63, 3, -1))
sketch3.addConstraint(Sketcher.Constraint("Symmetric", 65, 3, 66, 3, -1))
sketch3.addConstraint(Sketcher.Constraint("Symmetric", 64, 3, 67, 3, -1))
sketch3.addConstraint(Sketcher.Constraint("Horizontal", 0, 3, 2, 3))
sketch3.addConstraint(Sketcher.Constraint("Horizontal", 2, 3, 4, 3))
sketch3.addConstraint(Sketcher.Constraint("Horizontal", 4, 3, 5, 3))
sketch3.addConstraint(Sketcher.Constraint("Horizontal", 5, 3, 8, 3))
sketch3.addConstraint(Sketcher.Constraint("Horizontal", 8, 3, 9, 3))
sketch3.addConstraint(Sketcher.Constraint("Horizontal", 9, 3, 12, 3))
sketch3.addConstraint(Sketcher.Constraint("Horizontal", 12, 3, 13, 3))
sketch3.addConstraint(Sketcher.Constraint("Horizontal", 13, 3, 16, 3))
sketch3.addConstraint(Sketcher.Constraint("Horizontal", 16, 3, 17, 3))
sketch3.addConstraint(Sketcher.Constraint("Horizontal", 17, 3, 20, 3))
sketch3.addConstraint(Sketcher.Constraint("Horizontal", 20, 3, 21, 3))
sketch3.addConstraint(Sketcher.Constraint("Horizontal", 21, 3, 24, 3))
sketch3.addConstraint(Sketcher.Constraint("Horizontal", 24, 3, 25, 3))
sketch3.addConstraint(Sketcher.Constraint("Horizontal", 25, 3, 28, 3))
sketch3.addConstraint(Sketcher.Constraint("Horizontal", 28, 3, 29, 3))
sketch3.addConstraint(Sketcher.Constraint("Horizontal", 29, 3, 32, 3))
sketch3.addConstraint(Sketcher.Constraint("Horizontal", 32, 3, 33, 3))
sketch3.addConstraint(Sketcher.Constraint("Horizontal", 33, 3, 36, 3))
sketch3.addConstraint(Sketcher.Constraint("Horizontal", 36, 3, 37, 3))
sketch3.addConstraint(Sketcher.Constraint("Horizontal", 37, 3, 40, 3))
sketch3.addConstraint(Sketcher.Constraint("Horizontal", 40, 3, 41, 3))
sketch3.addConstraint(Sketcher.Constraint("Horizontal", 41, 3, 44, 3))
sketch3.addConstraint(Sketcher.Constraint("Horizontal", 44, 3, 45, 3))
sketch3.addConstraint(Sketcher.Constraint("Horizontal", 45, 3, 48, 3))
sketch3.addConstraint(Sketcher.Constraint("Horizontal", 48, 3, 49, 3))
sketch3.addConstraint(Sketcher.Constraint("Horizontal", 49, 3, 52, 3))
sketch3.addConstraint(Sketcher.Constraint("Horizontal", 52, 3, 53, 3))
sketch3.addConstraint(Sketcher.Constraint("Horizontal", 53, 3, 56, 3))
sketch3.addConstraint(Sketcher.Constraint("Horizontal", 56, 3, 57, 3))
sketch3.addConstraint(Sketcher.Constraint("Horizontal", 57, 3, 60, 3))
sketch3.addConstraint(Sketcher.Constraint("Horizontal", 60, 3, 61, 3))
sketch3.addConstraint(Sketcher.Constraint("Horizontal", 61, 3, 64, 3))
sketch3.addConstraint(Sketcher.Constraint("Horizontal", 64, 3, 65, 3))
sketch3.addConstraint(Sketcher.Constraint("Diameter", 0, Q("3.2 mm")))
sketch3.addConstraint(Sketcher.Constraint("DistanceX", -1, 1, 0, 3, Q("788 mm")))
sketch3.addConstraint(Sketcher.Constraint("DistanceY", 0, 3, -1, 1, Q("3 mm")))
sketch3.addConstraint(Sketcher.Constraint("DistanceX", -1, 1, 2, 3, Q("782 mm")))
sketch3.addConstraint(Sketcher.Constraint("DistanceX", -1, 1, 8, 3, Q("693 mm")))
sketch3.addConstraint(Sketcher.Constraint("DistanceX", -1, 1, 9, 3, Q("687 mm")))
sketch3.addConstraint(Sketcher.Constraint("DistanceX", -1, 1, 16, 3, Q("598 mm")))
sketch3.addConstraint(Sketcher.Constraint("DistanceX", -1, 1, 17, 3, Q("592 mm")))
sketch3.addConstraint(Sketcher.Constraint("DistanceX", -1, 1, 24, 3, Q("503 mm")))
sketch3.addConstraint(Sketcher.Constraint("DistanceX", -1, 1, 25, 3, Q("497 mm")))
sketch3.addConstraint(Sketcher.Constraint("DistanceX", -1, 1, 32, 3, Q("408 mm")))
sketch3.addConstraint(Sketcher.Constraint("DistanceX", -1, 1, 33, 3, Q("402 mm")))
sketch3.addConstraint(Sketcher.Constraint("DistanceX", -1, 1, 40, 3, Q("313 mm")))
sketch3.addConstraint(Sketcher.Constraint("DistanceX", -1, 1, 41, 3, Q("307 mm")))
sketch3.addConstraint(Sketcher.Constraint("DistanceX", -1, 1, 48, 3, Q("218 mm")))
sketch3.addConstraint(Sketcher.Constraint("DistanceX", -1, 1, 49, 3, Q("212 mm")))
sketch3.addConstraint(Sketcher.Constraint("DistanceX", -1, 1, 56, 3, Q("123 mm")))
sketch3.addConstraint(Sketcher.Constraint("DistanceX", -1, 1, 57, 3, Q("117 mm")))
sketch3.addConstraint(Sketcher.Constraint("DistanceX", -1, 1, 64, 3, Q("28 mm")))
sketch3.addConstraint(Sketcher.Constraint("DistanceX", -1, 1, 65, 3, Q("22 mm")))
sketch3.addConstraint(Sketcher.Constraint("DistanceX", -1, 1, 4, 3, Q("740.5 mm")))
sketch3.addConstraint(Sketcher.Constraint("DistanceX", -1, 1, 5, 3, Q("734.5 mm")))
sketch3.addConstraint(Sketcher.Constraint("DistanceX", -1, 1, 12, 3, Q("645.5 mm")))
sketch3.addConstraint(Sketcher.Constraint("DistanceX", -1, 1, 13, 3, Q("639.5 mm")))
sketch3.addConstraint(Sketcher.Constraint("DistanceX", -1, 1, 20, 3, Q("550.5 mm")))
sketch3.addConstraint(Sketcher.Constraint("DistanceX", -1, 1, 21, 3, Q("544.5 mm")))
sketch3.addConstraint(Sketcher.Constraint("DistanceX", -1, 1, 28, 3, Q("455.5 mm")))
sketch3.addConstraint(Sketcher.Constraint("DistanceX", -1, 1, 29, 3, Q("449.5 mm")))
sketch3.addConstraint(Sketcher.Constraint("DistanceX", -1, 1, 36, 3, Q("360.5 mm")))
sketch3.addConstraint(Sketcher.Constraint("DistanceX", -1, 1, 37, 3, Q("354.5 mm")))
sketch3.addConstraint(Sketcher.Constraint("DistanceX", -1, 1, 44, 3, Q("265.5 mm")))
sketch3.addConstraint(Sketcher.Constraint("DistanceX", -1, 1, 45, 3, Q("259.5 mm")))
sketch3.addConstraint(Sketcher.Constraint("DistanceX", -1, 1, 52, 3, Q("170.5 mm")))
sketch3.addConstraint(Sketcher.Constraint("DistanceX", -1, 1, 53, 3, Q("164.5 mm")))
sketch3.addConstraint(Sketcher.Constraint("DistanceX", -1, 1, 60, 3, Q("75.5 mm")))
sketch3.addConstraint(Sketcher.Constraint("DistanceX", -1, 1, 61, 3, Q("69.5 mm")))
pocket2 = body.newObject("PartDesign::Pocket", "Pocket001")
pocket2.Profile = sketch3
pocket2.Length = 15
pocket2.Reversed = True

doc.recompute()
